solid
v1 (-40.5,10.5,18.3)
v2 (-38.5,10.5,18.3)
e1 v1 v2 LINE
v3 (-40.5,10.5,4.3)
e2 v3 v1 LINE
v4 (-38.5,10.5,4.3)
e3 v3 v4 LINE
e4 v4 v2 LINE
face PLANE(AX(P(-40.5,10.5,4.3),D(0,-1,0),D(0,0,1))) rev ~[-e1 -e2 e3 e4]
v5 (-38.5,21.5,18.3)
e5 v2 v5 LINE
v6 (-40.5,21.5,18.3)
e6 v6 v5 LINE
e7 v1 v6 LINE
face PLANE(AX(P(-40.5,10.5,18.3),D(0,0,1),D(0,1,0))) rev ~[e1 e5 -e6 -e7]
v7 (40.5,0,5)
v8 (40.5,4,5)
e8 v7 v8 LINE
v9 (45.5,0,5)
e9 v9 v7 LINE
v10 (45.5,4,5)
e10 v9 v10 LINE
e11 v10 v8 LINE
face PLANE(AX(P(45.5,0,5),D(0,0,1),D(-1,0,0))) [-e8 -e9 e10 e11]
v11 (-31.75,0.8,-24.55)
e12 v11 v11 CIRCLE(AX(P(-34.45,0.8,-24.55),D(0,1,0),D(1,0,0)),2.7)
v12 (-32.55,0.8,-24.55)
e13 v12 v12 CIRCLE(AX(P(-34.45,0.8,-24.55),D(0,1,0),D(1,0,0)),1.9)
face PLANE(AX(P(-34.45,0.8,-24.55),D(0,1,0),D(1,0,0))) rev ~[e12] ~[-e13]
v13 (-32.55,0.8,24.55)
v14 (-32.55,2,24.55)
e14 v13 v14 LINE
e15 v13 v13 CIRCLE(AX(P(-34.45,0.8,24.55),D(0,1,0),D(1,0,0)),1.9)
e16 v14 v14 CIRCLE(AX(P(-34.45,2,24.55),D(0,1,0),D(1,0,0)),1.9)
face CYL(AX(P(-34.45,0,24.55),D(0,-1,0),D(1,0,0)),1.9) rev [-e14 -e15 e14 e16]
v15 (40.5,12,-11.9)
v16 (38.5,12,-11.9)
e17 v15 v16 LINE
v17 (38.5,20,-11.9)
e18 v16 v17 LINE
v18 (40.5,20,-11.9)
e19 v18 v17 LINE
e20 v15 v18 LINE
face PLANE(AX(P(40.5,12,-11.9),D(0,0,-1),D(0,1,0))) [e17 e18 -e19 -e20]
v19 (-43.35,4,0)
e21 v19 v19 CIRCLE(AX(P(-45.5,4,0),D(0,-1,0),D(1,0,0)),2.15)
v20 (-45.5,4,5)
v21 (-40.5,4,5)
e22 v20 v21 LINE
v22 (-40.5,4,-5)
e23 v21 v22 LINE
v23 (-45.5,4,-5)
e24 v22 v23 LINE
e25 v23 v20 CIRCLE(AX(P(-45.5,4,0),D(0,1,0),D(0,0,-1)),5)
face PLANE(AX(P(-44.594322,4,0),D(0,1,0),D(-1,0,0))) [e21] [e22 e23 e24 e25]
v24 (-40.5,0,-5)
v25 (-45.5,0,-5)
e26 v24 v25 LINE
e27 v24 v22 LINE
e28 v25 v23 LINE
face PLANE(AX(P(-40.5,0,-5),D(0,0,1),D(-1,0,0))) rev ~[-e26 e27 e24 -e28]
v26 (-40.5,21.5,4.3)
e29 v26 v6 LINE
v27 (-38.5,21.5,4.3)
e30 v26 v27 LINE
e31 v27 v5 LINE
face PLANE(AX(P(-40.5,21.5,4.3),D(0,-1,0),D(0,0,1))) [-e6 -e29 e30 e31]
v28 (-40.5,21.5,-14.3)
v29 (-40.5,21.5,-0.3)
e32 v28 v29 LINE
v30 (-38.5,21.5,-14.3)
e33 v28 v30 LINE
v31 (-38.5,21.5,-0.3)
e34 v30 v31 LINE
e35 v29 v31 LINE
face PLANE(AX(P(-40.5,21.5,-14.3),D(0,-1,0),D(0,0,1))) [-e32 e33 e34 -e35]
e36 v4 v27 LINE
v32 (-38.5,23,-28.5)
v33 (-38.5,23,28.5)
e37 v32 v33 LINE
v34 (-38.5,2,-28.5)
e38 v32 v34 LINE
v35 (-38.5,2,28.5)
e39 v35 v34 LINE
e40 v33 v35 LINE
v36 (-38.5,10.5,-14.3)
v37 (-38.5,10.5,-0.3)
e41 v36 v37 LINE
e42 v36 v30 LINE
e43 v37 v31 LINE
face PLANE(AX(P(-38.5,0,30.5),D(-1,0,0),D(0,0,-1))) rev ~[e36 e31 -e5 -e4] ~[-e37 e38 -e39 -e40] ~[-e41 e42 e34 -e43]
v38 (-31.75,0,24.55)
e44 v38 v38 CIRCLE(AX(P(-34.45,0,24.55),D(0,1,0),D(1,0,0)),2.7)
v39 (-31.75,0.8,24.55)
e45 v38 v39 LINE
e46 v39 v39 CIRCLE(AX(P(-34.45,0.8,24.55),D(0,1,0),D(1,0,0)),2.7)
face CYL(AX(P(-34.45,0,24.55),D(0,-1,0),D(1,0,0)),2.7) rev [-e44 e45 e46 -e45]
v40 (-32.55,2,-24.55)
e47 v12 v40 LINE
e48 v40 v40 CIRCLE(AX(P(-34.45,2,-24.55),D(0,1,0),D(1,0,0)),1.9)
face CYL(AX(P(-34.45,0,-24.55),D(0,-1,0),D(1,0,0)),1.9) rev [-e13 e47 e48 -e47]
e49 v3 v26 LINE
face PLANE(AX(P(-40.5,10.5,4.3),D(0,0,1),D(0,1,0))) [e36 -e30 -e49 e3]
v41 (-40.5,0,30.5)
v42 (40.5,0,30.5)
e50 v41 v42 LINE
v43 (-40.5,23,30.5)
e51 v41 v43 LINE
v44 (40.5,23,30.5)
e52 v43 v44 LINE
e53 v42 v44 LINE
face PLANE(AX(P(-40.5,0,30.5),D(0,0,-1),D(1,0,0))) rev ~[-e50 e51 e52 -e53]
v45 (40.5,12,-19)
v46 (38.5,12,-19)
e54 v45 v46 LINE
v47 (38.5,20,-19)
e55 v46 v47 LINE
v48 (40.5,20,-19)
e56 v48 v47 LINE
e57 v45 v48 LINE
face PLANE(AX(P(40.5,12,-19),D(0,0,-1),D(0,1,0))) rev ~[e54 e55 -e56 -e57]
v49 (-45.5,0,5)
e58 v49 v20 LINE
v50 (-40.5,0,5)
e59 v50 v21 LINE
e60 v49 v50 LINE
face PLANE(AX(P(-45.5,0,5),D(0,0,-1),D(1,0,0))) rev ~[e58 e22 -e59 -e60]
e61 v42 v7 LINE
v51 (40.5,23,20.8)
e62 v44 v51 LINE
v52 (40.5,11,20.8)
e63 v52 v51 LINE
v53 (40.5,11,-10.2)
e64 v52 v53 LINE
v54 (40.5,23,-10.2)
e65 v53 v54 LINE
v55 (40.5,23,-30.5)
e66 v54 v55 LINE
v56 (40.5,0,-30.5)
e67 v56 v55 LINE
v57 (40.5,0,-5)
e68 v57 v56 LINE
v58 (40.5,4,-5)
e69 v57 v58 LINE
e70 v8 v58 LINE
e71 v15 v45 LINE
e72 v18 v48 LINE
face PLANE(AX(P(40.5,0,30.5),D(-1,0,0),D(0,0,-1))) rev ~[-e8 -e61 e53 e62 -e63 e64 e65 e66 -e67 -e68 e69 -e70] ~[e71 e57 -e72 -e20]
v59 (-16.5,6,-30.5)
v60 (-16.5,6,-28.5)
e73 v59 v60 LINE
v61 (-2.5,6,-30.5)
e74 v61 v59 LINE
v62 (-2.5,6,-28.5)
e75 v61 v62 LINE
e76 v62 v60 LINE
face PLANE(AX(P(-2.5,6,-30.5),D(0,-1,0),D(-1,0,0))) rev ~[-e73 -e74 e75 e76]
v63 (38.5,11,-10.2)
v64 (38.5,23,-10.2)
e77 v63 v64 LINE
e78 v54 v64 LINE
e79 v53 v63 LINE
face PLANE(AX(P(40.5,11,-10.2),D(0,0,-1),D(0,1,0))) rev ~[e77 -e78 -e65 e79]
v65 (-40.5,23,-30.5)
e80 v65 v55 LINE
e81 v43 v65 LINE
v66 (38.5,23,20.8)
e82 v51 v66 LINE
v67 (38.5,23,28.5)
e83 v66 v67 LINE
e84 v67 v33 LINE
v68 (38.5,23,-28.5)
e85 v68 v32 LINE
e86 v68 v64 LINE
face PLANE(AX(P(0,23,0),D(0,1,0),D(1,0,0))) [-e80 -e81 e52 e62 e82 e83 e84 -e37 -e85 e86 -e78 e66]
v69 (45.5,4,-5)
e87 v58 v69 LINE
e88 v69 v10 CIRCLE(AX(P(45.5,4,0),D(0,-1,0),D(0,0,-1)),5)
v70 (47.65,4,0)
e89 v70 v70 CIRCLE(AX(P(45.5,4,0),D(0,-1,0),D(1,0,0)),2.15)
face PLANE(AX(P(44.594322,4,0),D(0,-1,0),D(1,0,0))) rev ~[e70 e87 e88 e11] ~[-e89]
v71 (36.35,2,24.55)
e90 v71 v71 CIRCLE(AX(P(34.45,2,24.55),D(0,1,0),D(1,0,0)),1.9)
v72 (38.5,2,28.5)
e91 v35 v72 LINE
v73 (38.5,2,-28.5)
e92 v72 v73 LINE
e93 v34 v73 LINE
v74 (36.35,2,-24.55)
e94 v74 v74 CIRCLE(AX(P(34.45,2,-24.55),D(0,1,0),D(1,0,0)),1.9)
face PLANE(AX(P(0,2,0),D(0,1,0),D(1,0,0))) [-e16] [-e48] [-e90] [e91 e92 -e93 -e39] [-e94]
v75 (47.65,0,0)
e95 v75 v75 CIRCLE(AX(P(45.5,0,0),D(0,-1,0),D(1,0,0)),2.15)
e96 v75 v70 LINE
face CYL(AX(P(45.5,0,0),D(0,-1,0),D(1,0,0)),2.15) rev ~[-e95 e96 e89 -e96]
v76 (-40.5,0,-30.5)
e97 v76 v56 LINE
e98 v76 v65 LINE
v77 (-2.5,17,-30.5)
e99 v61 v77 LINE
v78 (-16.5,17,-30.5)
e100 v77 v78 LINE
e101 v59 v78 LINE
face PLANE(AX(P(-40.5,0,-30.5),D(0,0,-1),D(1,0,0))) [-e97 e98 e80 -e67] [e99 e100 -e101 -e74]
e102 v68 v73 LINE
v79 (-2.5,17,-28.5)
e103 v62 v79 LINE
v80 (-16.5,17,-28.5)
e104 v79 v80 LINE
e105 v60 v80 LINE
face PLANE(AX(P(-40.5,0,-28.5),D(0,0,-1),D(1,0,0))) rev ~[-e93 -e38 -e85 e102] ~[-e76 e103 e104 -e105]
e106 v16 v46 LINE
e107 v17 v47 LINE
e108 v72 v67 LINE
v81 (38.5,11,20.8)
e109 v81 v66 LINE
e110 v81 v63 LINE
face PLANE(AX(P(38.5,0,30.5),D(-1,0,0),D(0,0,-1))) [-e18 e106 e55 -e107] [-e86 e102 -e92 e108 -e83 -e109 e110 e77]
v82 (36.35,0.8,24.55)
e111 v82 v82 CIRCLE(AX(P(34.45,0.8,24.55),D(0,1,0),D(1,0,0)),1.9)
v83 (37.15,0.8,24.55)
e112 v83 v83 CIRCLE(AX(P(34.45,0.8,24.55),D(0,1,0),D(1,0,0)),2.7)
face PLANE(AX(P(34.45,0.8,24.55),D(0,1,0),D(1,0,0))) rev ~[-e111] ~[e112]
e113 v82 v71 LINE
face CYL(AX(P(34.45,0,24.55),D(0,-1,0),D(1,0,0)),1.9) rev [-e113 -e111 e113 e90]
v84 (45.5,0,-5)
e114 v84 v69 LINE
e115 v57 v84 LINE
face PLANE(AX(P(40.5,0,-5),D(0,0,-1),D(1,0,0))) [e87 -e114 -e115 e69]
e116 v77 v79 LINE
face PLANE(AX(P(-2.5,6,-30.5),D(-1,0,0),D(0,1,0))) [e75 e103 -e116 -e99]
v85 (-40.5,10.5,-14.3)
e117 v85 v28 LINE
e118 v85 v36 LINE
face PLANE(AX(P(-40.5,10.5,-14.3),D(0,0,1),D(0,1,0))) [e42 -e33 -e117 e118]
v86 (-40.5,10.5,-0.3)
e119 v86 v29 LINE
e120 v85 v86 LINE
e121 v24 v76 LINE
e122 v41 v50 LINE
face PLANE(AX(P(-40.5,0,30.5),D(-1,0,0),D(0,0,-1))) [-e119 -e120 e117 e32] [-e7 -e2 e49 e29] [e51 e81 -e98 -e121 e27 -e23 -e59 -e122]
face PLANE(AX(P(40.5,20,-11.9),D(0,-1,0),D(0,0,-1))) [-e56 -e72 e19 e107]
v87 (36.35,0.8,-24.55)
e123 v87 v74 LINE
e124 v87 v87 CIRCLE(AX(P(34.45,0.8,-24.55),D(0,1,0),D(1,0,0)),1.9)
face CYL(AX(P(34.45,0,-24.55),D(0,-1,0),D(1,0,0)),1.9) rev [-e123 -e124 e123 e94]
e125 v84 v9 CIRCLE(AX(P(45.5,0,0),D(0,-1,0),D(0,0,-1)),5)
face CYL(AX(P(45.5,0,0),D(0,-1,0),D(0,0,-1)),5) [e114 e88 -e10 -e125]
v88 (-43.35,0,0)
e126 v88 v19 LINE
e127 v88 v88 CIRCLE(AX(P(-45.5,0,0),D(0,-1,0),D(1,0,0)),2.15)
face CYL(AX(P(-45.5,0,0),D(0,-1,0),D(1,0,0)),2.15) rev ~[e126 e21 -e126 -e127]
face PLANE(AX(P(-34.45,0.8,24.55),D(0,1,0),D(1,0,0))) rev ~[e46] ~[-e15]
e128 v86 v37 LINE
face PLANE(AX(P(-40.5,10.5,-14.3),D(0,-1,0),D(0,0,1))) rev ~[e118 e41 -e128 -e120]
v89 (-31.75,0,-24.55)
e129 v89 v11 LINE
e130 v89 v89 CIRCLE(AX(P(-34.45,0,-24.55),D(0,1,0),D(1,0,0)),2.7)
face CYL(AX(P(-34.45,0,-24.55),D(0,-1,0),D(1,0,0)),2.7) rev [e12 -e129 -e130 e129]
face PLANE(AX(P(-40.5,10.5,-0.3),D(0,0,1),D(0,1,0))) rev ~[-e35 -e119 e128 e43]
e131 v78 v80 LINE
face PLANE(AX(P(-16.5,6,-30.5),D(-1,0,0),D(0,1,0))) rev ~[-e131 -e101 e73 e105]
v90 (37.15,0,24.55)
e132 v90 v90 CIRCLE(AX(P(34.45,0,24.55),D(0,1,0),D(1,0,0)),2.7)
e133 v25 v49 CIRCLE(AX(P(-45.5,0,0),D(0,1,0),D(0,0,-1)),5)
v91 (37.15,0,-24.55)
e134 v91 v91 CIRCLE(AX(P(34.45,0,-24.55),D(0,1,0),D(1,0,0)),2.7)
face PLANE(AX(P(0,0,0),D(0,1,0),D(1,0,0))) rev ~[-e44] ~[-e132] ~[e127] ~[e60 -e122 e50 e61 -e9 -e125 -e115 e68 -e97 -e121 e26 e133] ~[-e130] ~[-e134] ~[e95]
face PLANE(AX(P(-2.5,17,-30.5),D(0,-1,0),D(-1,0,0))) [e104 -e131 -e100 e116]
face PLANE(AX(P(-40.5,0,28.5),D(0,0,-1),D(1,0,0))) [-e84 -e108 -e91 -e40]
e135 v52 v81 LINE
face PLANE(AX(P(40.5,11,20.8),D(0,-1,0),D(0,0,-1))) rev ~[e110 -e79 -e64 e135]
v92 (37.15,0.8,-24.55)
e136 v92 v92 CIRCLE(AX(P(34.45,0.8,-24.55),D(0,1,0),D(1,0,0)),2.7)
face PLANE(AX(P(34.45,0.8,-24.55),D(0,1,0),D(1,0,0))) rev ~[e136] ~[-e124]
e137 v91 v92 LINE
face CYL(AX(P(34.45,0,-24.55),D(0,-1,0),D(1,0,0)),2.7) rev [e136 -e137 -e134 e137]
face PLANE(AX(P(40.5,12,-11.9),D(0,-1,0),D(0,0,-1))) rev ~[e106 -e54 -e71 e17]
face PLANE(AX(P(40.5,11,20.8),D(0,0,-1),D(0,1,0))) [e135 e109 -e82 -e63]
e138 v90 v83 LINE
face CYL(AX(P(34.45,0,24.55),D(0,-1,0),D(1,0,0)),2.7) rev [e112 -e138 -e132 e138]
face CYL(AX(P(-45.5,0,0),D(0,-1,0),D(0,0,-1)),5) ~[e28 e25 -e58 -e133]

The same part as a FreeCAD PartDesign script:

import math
import FreeCAD as App
import Part
import Sketcher

V = App.Vector
Q = App.Units.Quantity


def faces_at(feature, points):
    """Names of the faces that lie closest to the given points."""
    faces = feature.Shape.Faces
    near = lambda p: min(range(len(faces)), key=lambda i: faces[i].distToShape(Part.Vertex(*p))[0])
    return sorted({f"Face{near(p) + 1}" for p in points})


def add_polygon(sketch, points):
    """Adds a closed chain of lines whose ends are joined by coincident constraints."""
    first, n = sketch.GeometryCount, len(points)
    for a, b in zip(points, points[1:] + points[:1]):
        sketch.addGeometry(Part.LineSegment(App.Vector(*a, 0), App.Vector(*b, 0)), False)
    for i in range(n):
        sketch.addConstraint(Sketcher.Constraint("Coincident", first + i, 2, first + (i + 1) % n, 1))

doc = App.newDocument("Part")
body = doc.addObject("PartDesign::Body", "Body")

# Sketch on XZ plane
sketch1 = body.newObject("Sketcher::SketchObject", "Sketch")
sketch1.AttachmentSupport = (doc.getObject("XZ_Plane"), [""])
sketch1.MapMode = "FlatFace"
add_polygon(sketch1, [(-40, -30), (-40, 30), (40, 30), (40, -30)])  # lines 0-3
sketch1.addConstraint([
    Sketcher.Constraint("Vertical", 0),
    Sketcher.Constraint("Horizontal", 1),
    Sketcher.Constraint("Vertical", 2),
    Sketcher.Constraint("Horizontal", 3),
    Sketcher.Constraint("Symmetric", 0, 2, 2, 2, -1, 1),
    Sketcher.Constraint("DistanceX", 1, 1, 1, 2, Q("81 mm")),
    Sketcher.Constraint("DistanceY", 0, 1, 0, 2, Q("61 mm")),
])
pad1 = body.newObject("PartDesign::Pad", "Pad")
pad1.Profile = sketch1
pad1.Length = 23
pad1.Reversed = True
doc.recompute()

thickness = body.newObject("PartDesign::Thickness", "Thickness")
thickness.Base = (pad1, faces_at(pad1, [(0, 23, 0)]))
thickness.Value = 2
thickness.Reversed = True
thickness.Join = "Intersection"

# Sketch on XZ plane
sketch2 = body.newObject("Sketcher::SketchObject", "Sketch001")
sketch2.AttachmentSupport = (doc.getObject("XZ_Plane"), [""])
sketch2.MapMode = "FlatFace"
sketch2.addGeometry([
    Part.LineSegment(V(-40.5, 5, 0), V(-45.5, 5, 0)),  # 0
    Part.ArcOfCircle(Part.Circle(V(-45.5, 0, 0), V(0, 0, 1), 5), math.radians(90), math.radians(270)),  # 1
    Part.LineSegment(V(-45.5, -5, 0), V(-40.5, -5, 0)),  # 2
    Part.LineSegment(V(-40.5, -5, 0), V(-40.5, 5, 0)),  # 3
    Part.Circle(V(-45.5, 0, 0), V(0, 0, 1), 2.1),  # 4
    Part.LineSegment(V(40.5, -5, 0), V(45.5, -5, 0)),  # 5
    Part.ArcOfCircle(Part.Circle(V(45.5, 0, 0), V(0, 0, 1), 5), math.radians(-90), math.radians(90)),  # 6
    Part.LineSegment(V(45.5, 5, 0), V(40.5, 5, 0)),  # 7
    Part.LineSegment(V(40.5, 5, 0), V(40.5, -5, 0)),  # 8
    Part.Circle(V(45.5, 0, 0), V(0, 0, 1), 2.1),  # 9
], False)
sketch2.addConstraint([
    Sketcher.Constraint("Tangent", 0, 2, 1, 1),
    Sketcher.Constraint("Tangent", 1, 2, 2, 1),
    Sketcher.Constraint("Coincident", 2, 2, 3, 1),
    Sketcher.Constraint("Coincident", 3, 2, 0, 1),
    Sketcher.Constraint("Tangent", 5, 2, 6, 1),
    Sketcher.Constraint("Tangent", 6, 2, 7, 1),
    Sketcher.Constraint("Coincident", 7, 2, 8, 1),
    Sketcher.Constraint("Coincident", 8, 2, 5, 1),
    Sketcher.Constraint("Horizontal", 0),
    Sketcher.Constraint("Horizontal", 2),
    Sketcher.Constraint("Vertical", 3),
    Sketcher.Constraint("Horizontal", 5),
    Sketcher.Constraint("Horizontal", 7),
    Sketcher.Constraint("Vertical", 8),
    Sketcher.Constraint("Coincident", 4, 3, 1, 3),
    Sketcher.Constraint("Coincident", 9, 3, 6, 3),
    Sketcher.Constraint("Equal", 1, 6),
    Sketcher.Constraint("Equal", 4, 9),
    Sketcher.Constraint("Symmetric", 1, 3, 6, 3, -1, 1),
    Sketcher.Constraint("Symmetric", 3, 2, 7, 2, -2),
    Sketcher.Constraint("Radius", 1, Q("5 mm")),
    Sketcher.Constraint("Diameter", 4, Q("4.3 mm")),
    Sketcher.Constraint("DistanceX", 0, 2, 0, 1, Q("5 mm")),
    Sketcher.Constraint("DistanceX", 1, 3, 6, 3, Q("91 mm")),
])
pad2 = body.newObject("PartDesign::Pad", "Pad001")
pad2.Profile = sketch2
pad2.Length = 4
pad2.Reversed = True

# Sketch on XZ plane
sketch3 = body.newObject("Sketcher::SketchObject", "Sketch002")
sketch3.AttachmentSupport = (doc.getObject("XZ_Plane"), [""])
sketch3.MapMode = "FlatFace"
sketch3.addGeometry([
    Part.Circle(V(-34.5, 24.6, 0), V(0, 0, 1), 1.9),
    Part.Circle(V(-34.5, -24.6, 0), V(0, 0, 1), 1.9),
    Part.Circle(V(34.5, -24.6, 0), V(0, 0, 1), 1.9),
    Part.Circle(V(34.5, 24.6, 0), V(0, 0, 1), 1.9),
], False)
sketch3.addConstraint([
    Sketcher.Constraint("Equal", 0, 1),
    Sketcher.Constraint("Equal", 1, 2),
    Sketcher.Constraint("Equal", 2, 3),
    Sketcher.Constraint("Symmetric", 0, 3, 2, 3, -1, 1),
    Sketcher.Constraint("Symmetric", 1, 3, 3, 3, -1, 1),
    Sketcher.Constraint("Symmetric", 1, 3, 2, 3, -2),
    Sketcher.Constraint("Diameter", 0, Q("3.8 mm")),
    Sketcher.Constraint("DistanceY", 1, 3, 0, 3, Q("49.1 mm")),
    Sketcher.Constraint("DistanceX", 1, 3, 2, 3, Q("68.9 mm")),
])
pocket1 = body.newObject("PartDesign::Pocket", "Pocket")
pocket1.Profile = sketch3
pocket1.Length = 2

# Sketch on XZ plane
sketch4 = body.newObject("Sketcher::SketchObject", "Sketch003")
sketch4.AttachmentSupport = (doc.getObject("XZ_Plane"), [""])
sketch4.MapMode = "FlatFace"
sketch4.addGeometry([
    Part.Circle(V(-34.5, 24.6, 0), V(0, 0, 1), 2.7),  # 0
    Part.Circle(V(-34.5, 24.6, 0), V(0, 0, 1), 1.9),  # 1
    Part.Circle(V(-34.5, -24.6, 0), V(0, 0, 1), 2.7),  # 2
    Part.Circle(V(-34.5, -24.6, 0), V(0, 0, 1), 1.9),  # 3
    Part.Circle(V(34.5, -24.6, 0), V(0, 0, 1), 2.7),  # 4
    Part.Circle(V(34.5, -24.6, 0), V(0, 0, 1), 1.9),  # 5
    Part.Circle(V(34.5, 24.6, 0), V(0, 0, 1), 2.7),  # 6
    Part.Circle(V(34.5, 24.6, 0), V(0, 0, 1), 1.9),  # 7
], False)
sketch4.addConstraint([
    Sketcher.Constraint("Coincident", 1, 3, 0, 3),
    Sketcher.Constraint("Coincident", 3, 3, 2, 3),
    Sketcher.Constraint("Coincident", 5, 3, 4, 3),
    Sketcher.Constraint("Coincident", 7, 3, 6, 3),
    Sketcher.Constraint("Equal", 0, 2),
    Sketcher.Constraint("Equal", 1, 3),
    Sketcher.Constraint("Equal", 2, 4),
    Sketcher.Constraint("Equal", 3, 5),
    Sketcher.Constraint("Equal", 4, 6),
    Sketcher.Constraint("Equal", 5, 7),
    Sketcher.Constraint("Symmetric", 0, 3, 4, 3, -1, 1),
    Sketcher.Constraint("Symmetric", 2, 3, 6, 3, -1, 1),
    Sketcher.Constraint("Symmetric", 2, 3, 4, 3, -2),
    Sketcher.Constraint("Diameter", 0, Q("5.4 mm")),
    Sketcher.Constraint("Diameter", 1, Q("3.8 mm")),
    Sketcher.Constraint("DistanceY", 2, 3, 0, 3, Q("49.1 mm")),
    Sketcher.Constraint("DistanceX", 2, 3, 4, 3, Q("68.9 mm")),
])
pocket2 = body.newObject("PartDesign::Pocket", "Pocket001")
pocket2.Profile = sketch4
pocket2.Length = 0.8

# Sketch on YZ plane
sketch5 = body.newObject("Sketcher::SketchObject", "Sketch004")
sketch5.AttachmentSupport = (doc.getObject("YZ_Plane"), [""])
sketch5.MapMode = "FlatFace"
sketch5.AttachmentOffset = App.Placement(V(0, 0, 40.5), App.Rotation())
add_polygon(sketch5, [(23, 21), (11, 21), (11, -10), (23, -10)])  # lines 0-3
add_polygon(sketch5, [(20, -12), (12, -12), (12, -19), (20, -19)])  # lines 4-7
sketch5.addConstraint([
    Sketcher.Constraint("Horizontal", 0),
    Sketcher.Constraint("Vertical", 1),
    Sketcher.Constraint("Horizontal", 2),
    Sketcher.Constraint("Vertical", 3),
    Sketcher.Constraint("Horizontal", 4),
    Sketcher.Constraint("Vertical", 5),
    Sketcher.Constraint("Horizontal", 6),
    Sketcher.Constraint("Vertical", 7),
    Sketcher.Constraint("DistanceX", 0, 2, 0, 1, Q("12 mm")),
    Sketcher.Constraint("DistanceX", 4, 2, 4, 1, Q("8 mm")),
    Sketcher.Constraint("DistanceY", 1, 2, 1, 1, Q("31 mm")),
    Sketcher.Constraint("DistanceY", 5, 2, 5, 1, Q("7.1 mm")),
    Sketcher.Constraint("DistanceX", -1, 1, 0, 2, Q("11 mm")),
    Sketcher.Constraint("DistanceX", -1, 1, 4, 2, Q("12 mm")),
    Sketcher.Constraint("DistanceY", 5, 2, -1, 1, Q("19 mm")),
    Sketcher.Constraint("DistanceY", -1, 1, 0, 2, Q("20.8 mm")),
])
pocket3 = body.newObject("PartDesign::Pocket", "Pocket002")
pocket3.Profile = sketch5
pocket3.Length = 2

# Sketch on XY plane
sketch6 = body.newObject("Sketcher::SketchObject", "Sketch005")
sketch6.AttachmentSupport = (doc.getObject("XY_Plane"), [""])
sketch6.MapMode = "FlatFace"
sketch6.AttachmentOffset = App.Placement(V(0, 0, -30.5), App.Rotation())
add_polygon(sketch6, [(-2, 17), (-2, 6), (-16, 6), (-16, 17)])  # lines 0-3
sketch6.addConstraint([
    Sketcher.Constraint("Vertical", 0),
    Sketcher.Constraint("Horizontal", 1),
    Sketcher.Constraint("Vertical", 2),
    Sketcher.Constraint("Horizontal", 3),
    Sketcher.Constraint("DistanceX", 1, 2, 1, 1, Q("14 mm")),
    Sketcher.Constraint("DistanceY", 0, 2, 0, 1, Q("11 mm")),
    Sketcher.Constraint("DistanceY", -1, 1, 0, 2, Q("6 mm")),
    Sketcher.Constraint("DistanceX", 0, 2, -1, 1, Q("2.5 mm")),
])
pocket4 = body.newObject("PartDesign::Pocket", "Pocket003")
pocket4.Profile = sketch6
pocket4.Length = 2
pocket4.Reversed = True

# Sketch on YZ plane
sketch7 = body.newObject("Sketcher::SketchObject", "Sketch006")
sketch7.AttachmentSupport = (doc.getObject("YZ_Plane"), [""])
sketch7.MapMode = "FlatFace"
sketch7.AttachmentOffset = App.Placement(V(0, 0, -40.5), App.Rotation())
add_polygon(sketch7, [(22, 4), (10, 4), (10, 18), (22, 18)])  # lines 0-3
add_polygon(sketch7, [(22, -14), (10, -14), (10, 0), (22, 0)])  # lines 4-7
sketch7.addConstraint([
    Sketcher.Constraint("Horizontal", 0),
    Sketcher.Constraint("Vertical", 1),
    Sketcher.Constraint("Horizontal", 2),
    Sketcher.Constraint("Vertical", 3),
    Sketcher.Constraint("Horizontal", 4),
    Sketcher.Constraint("Vertical", 5),
    Sketcher.Constraint("Horizontal", 6),
    Sketcher.Constraint("Vertical", 7),
    Sketcher.Constraint("Vertical", 1, 2, 4, 2),
    Sketcher.Constraint("Vertical", 3, 2, 6, 2),
    Sketcher.Constraint("Equal", 3, 5),
    Sketcher.Constraint("DistanceX", 0, 2, 0, 1, Q("11 mm")),
    Sketcher.Constraint("DistanceY", 1, 1, 1, 2, Q("14 mm")),
    Sketcher.Constraint("DistanceX", -1, 1, 0, 2, Q("10.5 mm")),
    Sketcher.Constraint("DistanceY", -1, 1, 0, 2, Q("4.3 mm")),
    Sketcher.Constraint("DistanceY", 4, 2, -1, 1, Q("14.3 mm")),
])
pocket5 = body.newObject("PartDesign::Pocket", "Pocket004")
pocket5.Profile = sketch7
pocket5.Length = 2
pocket5.Reversed = True

doc.recompute()
